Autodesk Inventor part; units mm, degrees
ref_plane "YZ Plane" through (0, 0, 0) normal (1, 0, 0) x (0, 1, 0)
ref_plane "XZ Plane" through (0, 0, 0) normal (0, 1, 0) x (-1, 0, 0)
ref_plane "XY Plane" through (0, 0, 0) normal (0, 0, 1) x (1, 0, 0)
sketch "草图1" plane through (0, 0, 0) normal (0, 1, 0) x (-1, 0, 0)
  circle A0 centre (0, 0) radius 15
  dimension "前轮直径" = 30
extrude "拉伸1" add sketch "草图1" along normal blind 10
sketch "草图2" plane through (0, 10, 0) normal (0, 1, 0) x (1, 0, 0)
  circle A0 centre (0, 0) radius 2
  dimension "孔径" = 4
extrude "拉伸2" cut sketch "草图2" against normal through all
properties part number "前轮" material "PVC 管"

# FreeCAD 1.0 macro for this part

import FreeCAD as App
import Part
import Sketcher

V = App.Vector

doc = App.newDocument("Part")
body = doc.addObject("PartDesign::Body", "Body")

sketch1 = doc.addObject("Sketcher::SketchObject", "Sketch")
body.addObject(sketch1)
sketch1.AttachmentSupport = (doc.XZ_Plane, [""])
sketch1.MapMode = "FlatFace"
sketch1.addGeometry(Part.Circle(V(0, 0, 0), V(0, 0, 1), 15), False)
sketch1.addConstraint(Sketcher.Constraint("Coincident", 0, 3, -1, 1))
sketch1.addConstraint(Sketcher.Constraint("Diameter", 0, 30.0))
pad1 = doc.addObject("PartDesign::Pad", "Pad")
body.addObject(pad1)
pad1.Profile = sketch1
pad1.Length = 10
pad1.Reversed = True

sketch2 = doc.addObject("Sketcher::SketchObject", "Sketch001")
body.addObject(sketch2)
sketch2.AttachmentSupport = (doc.XZ_Plane, [""])
sketch2.MapMode = "FlatFace"
sketch2.AttachmentOffset = App.Placement(V(0, 0, -10), App.Rotation())
sketch2.addGeometry(Part.Circle(V(0, 0, 0), V(0, 0, 1), 2), False)
sketch2.addConstraint(Sketcher.Constraint("Coincident", 0, 3, -1, 1))
sketch2.addConstraint(Sketcher.Constraint("Diameter", 0, 4.0))
pocket1 = doc.addObject("PartDesign::Pocket", "Pocket")
body.addObject(pocket1)
pocket1.Profile = sketch2
pocket1.Type = "ThroughAll"
pocket1.Reversed = True

doc.recompute()
